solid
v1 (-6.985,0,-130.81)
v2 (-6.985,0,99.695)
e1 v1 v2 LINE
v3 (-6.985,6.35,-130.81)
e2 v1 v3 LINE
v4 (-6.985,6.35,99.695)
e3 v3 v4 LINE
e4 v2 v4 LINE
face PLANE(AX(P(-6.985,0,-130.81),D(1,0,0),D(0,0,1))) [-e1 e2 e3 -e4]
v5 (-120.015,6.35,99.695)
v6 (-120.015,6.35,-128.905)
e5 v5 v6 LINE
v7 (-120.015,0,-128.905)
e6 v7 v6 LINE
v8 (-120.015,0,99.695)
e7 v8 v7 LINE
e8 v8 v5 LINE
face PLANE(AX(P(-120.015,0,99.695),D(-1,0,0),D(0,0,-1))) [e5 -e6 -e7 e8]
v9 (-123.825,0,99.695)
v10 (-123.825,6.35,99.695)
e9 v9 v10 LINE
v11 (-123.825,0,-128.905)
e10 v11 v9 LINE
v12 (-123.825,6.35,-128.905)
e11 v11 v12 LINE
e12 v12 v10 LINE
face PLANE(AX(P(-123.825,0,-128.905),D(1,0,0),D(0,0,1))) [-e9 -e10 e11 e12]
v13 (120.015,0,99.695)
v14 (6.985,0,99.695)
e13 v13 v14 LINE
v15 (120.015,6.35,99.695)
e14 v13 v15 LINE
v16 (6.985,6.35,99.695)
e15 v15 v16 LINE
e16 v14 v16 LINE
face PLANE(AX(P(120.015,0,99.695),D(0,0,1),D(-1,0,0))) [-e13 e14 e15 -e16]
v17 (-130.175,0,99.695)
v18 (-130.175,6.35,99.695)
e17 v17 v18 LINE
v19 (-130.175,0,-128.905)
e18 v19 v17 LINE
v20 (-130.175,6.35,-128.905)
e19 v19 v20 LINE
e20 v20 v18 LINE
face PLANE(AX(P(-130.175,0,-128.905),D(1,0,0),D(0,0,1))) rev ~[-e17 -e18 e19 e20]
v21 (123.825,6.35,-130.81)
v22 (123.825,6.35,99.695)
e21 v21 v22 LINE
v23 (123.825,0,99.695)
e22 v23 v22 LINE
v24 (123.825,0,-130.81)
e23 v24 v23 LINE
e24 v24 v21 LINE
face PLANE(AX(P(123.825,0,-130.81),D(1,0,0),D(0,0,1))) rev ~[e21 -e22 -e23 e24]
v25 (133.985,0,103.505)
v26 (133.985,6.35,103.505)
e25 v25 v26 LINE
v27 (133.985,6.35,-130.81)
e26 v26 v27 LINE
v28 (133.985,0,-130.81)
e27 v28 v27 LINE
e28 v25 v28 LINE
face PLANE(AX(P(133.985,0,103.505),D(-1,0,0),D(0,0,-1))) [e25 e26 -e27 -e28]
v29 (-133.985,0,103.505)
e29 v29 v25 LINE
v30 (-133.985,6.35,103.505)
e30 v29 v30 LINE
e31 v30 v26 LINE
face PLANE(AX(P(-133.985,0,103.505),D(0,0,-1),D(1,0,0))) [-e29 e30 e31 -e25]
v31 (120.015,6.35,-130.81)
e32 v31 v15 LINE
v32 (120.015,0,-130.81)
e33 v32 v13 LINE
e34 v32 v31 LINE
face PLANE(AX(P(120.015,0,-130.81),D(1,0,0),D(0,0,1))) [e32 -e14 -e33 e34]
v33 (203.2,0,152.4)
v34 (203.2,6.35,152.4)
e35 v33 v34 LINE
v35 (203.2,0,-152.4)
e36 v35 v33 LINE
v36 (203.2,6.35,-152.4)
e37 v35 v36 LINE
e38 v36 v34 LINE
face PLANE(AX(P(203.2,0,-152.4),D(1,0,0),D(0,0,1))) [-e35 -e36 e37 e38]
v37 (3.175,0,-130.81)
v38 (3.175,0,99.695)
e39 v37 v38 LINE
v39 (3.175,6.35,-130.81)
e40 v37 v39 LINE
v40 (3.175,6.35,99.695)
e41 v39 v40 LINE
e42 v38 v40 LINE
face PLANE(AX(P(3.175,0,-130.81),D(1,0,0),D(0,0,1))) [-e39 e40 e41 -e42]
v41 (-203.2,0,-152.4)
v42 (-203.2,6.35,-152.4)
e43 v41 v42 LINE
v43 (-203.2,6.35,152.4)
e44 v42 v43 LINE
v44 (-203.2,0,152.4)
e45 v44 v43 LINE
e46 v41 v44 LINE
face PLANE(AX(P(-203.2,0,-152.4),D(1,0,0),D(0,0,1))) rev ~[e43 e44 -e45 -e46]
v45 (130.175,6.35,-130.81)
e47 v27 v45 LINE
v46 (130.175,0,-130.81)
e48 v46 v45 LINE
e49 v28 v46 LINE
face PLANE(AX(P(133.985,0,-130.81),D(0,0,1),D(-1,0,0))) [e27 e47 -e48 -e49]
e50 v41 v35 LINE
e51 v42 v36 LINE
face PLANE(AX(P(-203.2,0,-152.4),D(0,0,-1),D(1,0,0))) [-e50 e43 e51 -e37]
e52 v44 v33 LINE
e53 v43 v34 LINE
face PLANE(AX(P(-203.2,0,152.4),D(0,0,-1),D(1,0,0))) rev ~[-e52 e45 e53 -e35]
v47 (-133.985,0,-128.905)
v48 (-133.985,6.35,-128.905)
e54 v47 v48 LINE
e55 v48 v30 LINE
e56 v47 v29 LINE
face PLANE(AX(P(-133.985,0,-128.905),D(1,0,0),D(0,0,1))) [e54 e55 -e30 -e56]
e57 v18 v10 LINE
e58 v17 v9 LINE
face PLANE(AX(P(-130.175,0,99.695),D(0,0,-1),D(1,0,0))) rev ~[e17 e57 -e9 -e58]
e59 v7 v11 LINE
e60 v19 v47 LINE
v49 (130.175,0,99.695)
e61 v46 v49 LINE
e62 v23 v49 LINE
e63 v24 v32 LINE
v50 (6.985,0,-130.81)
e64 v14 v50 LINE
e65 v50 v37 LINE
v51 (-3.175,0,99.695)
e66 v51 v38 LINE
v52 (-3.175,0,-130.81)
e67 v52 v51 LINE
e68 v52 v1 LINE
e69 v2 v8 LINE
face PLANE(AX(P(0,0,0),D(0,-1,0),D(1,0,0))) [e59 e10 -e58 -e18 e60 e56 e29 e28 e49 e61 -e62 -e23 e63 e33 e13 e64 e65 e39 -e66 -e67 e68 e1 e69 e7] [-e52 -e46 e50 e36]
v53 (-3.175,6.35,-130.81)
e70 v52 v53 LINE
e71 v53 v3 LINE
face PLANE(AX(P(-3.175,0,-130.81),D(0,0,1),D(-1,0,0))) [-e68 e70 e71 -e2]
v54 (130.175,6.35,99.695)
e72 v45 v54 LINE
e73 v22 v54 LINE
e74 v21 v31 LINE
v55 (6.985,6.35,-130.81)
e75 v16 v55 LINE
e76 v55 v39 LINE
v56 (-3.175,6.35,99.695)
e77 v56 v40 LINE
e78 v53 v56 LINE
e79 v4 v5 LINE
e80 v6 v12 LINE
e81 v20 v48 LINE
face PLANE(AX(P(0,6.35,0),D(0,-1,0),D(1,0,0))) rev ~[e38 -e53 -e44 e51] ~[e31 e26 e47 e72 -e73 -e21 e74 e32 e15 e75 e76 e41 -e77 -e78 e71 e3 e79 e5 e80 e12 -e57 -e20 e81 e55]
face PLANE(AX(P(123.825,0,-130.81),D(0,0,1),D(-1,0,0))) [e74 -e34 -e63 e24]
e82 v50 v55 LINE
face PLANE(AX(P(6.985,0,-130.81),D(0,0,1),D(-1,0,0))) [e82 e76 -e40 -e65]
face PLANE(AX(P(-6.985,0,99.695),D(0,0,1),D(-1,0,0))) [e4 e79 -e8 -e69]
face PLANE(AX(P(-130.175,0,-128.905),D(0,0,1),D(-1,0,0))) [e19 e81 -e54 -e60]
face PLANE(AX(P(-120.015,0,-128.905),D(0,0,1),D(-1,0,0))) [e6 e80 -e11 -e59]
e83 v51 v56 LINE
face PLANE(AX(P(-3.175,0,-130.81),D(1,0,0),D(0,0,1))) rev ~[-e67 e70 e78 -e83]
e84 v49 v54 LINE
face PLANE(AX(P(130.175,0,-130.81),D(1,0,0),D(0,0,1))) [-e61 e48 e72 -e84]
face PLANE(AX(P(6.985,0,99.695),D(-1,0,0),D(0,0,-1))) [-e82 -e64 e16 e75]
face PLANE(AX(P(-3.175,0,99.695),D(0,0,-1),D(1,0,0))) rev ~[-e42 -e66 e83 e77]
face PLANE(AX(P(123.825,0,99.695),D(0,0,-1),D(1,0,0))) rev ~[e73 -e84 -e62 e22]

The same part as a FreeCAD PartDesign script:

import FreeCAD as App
import Part
import Sketcher
Q = App.Units.Quantity


def add_polygon(sketch, points):
    """Adds a closed chain of lines whose ends are joined by coincident constraints."""
    first, n = sketch.GeometryCount, len(points)
    for a, b in zip(points, points[1:] + points[:1]):
        sketch.addGeometry(Part.LineSegment(App.Vector(*a, 0), App.Vector(*b, 0)), False)
    for i in range(n):
        sketch.addConstraint(Sketcher.Constraint("Coincident", first + i, 2, first + (i + 1) % n, 1))

doc = App.newDocument("Part")
params = doc.addObject("Spreadsheet::Sheet", "Params")
for row, (alias, value) in enumerate([
    ("sketch1_width", "16 in"),
    ("sketch1_height", "12 in"),
    ("sketch1_height2", "9 in"),
    ("sketch1_width2", "0.15 in"),
    ("sketch1_width3", "0.25 in"),
    ("pad1_length", "0.25 in"),
], start=1):
    params.set(f"A{row}", alias)
    params.set(f"B{row}", "=" + value)
    params.setAlias(f"B{row}", alias)

body = doc.addObject("PartDesign::Body", "Body")

# Sketch on XZ plane
sketch1 = body.newObject("Sketcher::SketchObject", "Sketch")
sketch1.AttachmentSupport = (doc.getObject("XZ_Plane"), [""])
sketch1.MapMode = "FlatFace"
add_polygon(sketch1, [(-203.2, 152.4), (-203.2, -152.4), (203.2, -152.4), (203.2, 152.4)])  # lines 0-3
add_polygon(sketch1, [(134, 103.5), (134, -130.8), (130.2, -130.8), (130.2, 99.7), (123.8, 99.7), (123.8, -130.8), (120, -130.8), (120, 99.7), (7, 99.7), (7, -130.8), (3.2, -130.8), (3.2, 99.7), (-3.2, 99.7), (-3.2, -130.8), (-7, -130.8), (-7, 99.7), (-120, 99.7), (-120, -128.9), (-123.8, -128.9), (-123.8, 99.7), (-130.2, 99.7), (-130.2, -128.9), (-134, -128.9), (-134, 103.5)])  # lines 4-27
sketch1.addConstraint([
    Sketcher.Constraint("Vertical", 0),
    Sketcher.Constraint("Horizontal", 1),
    Sketcher.Constraint("Vertical", 2),
    Sketcher.Constraint("Horizontal", 3),
    Sketcher.Constraint("Vertical", 4),
    Sketcher.Constraint("Horizontal", 5),
    Sketcher.Constraint("Vertical", 6),
    Sketcher.Constraint("Horizontal", 7),
    Sketcher.Constraint("Vertical", 8),
    Sketcher.Constraint("Horizontal", 9),
    Sketcher.Constraint("Vertical", 10),
    Sketcher.Constraint("Horizontal", 11),
    Sketcher.Constraint("Vertical", 12),
    Sketcher.Constraint("Horizontal", 13),
    Sketcher.Constraint("Vertical", 14),
    Sketcher.Constraint("Horizontal", 15),
    Sketcher.Constraint("Vertical", 16),
    Sketcher.Constraint("Horizontal", 17),
    Sketcher.Constraint("Vertical", 18),
    Sketcher.Constraint("Horizontal", 19),
    Sketcher.Constraint("Vertical", 20),
    Sketcher.Constraint("Horizontal", 21),
    Sketcher.Constraint("Vertical", 22),
    Sketcher.Constraint("Horizontal", 23),
    Sketcher.Constraint("Vertical", 24),
    Sketcher.Constraint("Horizontal", 25),
    Sketcher.Constraint("Vertical", 26),
    Sketcher.Constraint("Horizontal", 27),
    Sketcher.Constraint("Symmetric", 0, 2, 2, 2, -1, 1),
    Sketcher.Constraint("Symmetric", 13, 2, 16, 2, -2),
    Sketcher.Constraint("Symmetric", 11, 2, 18, 2, -2),
    Sketcher.Constraint("Symmetric", 7, 2, 22, 2, -2),
    Sketcher.Constraint("Horizontal", 5, 2, 8, 2),
    Sketcher.Constraint("Horizontal", 7, 2, 10, 2),
    Sketcher.Constraint("Horizontal", 9, 2, 12, 2),
    Sketcher.Constraint("Horizontal", 11, 2, 14, 2),
    Sketcher.Constraint("Horizontal", 21, 2, 24, 2),
    Sketcher.Constraint("Equal", 5, 9),
    Sketcher.Constraint("Equal", 9, 13),
    Sketcher.Constraint("Equal", 7, 15),
    Sketcher.Constraint("Equal", 11, 19),
    Sketcher.Constraint("Equal", 15, 23),
    Sketcher.Constraint("Equal", 21, 25),
    Sketcher.Constraint("DistanceX", 1, 1, 1, 2, Q("16 in")),
    Sketcher.Constraint("DistanceY", 0, 2, 0, 1, Q("12 in")),
    Sketcher.Constraint("DistanceY", 20, 2, 20, 1, Q("9 in")),
    Sketcher.Constraint("DistanceX", 12, 2, 4, 2, Q("5 in")),
    Sketcher.Constraint("DistanceX", 5, 2, 5, 1, Q("0.15 in")),
    Sketcher.Constraint("DistanceX", 7, 2, 7, 1, Q("0.25 in")),
    Sketcher.Constraint("DistanceY", 26, 1, 26, 2, Q("9.15 in")),
    Sketcher.Constraint("DistanceY", 4, 2, 4, 1, Q("9.225 in")),
    Sketcher.Constraint("DistanceY", 4, 2, -1, 1, Q("5.15 in")),
])
sketch1.setExpression("Constraints[71]", "Params.sketch1_width")
sketch1.setExpression("Constraints[72]", "Params.sketch1_height")
sketch1.setExpression("Constraints[73]", "Params.sketch1_height2")
sketch1.setExpression("Constraints[75]", "Params.sketch1_width2")
sketch1.setExpression("Constraints[76]", "Params.sketch1_width3")
pad1 = body.newObject("PartDesign::Pad", "Pad")
pad1.Profile = sketch1
pad1.setExpression("Length", "Params.pad1_length")
pad1.Reversed = True

doc.recompute()
